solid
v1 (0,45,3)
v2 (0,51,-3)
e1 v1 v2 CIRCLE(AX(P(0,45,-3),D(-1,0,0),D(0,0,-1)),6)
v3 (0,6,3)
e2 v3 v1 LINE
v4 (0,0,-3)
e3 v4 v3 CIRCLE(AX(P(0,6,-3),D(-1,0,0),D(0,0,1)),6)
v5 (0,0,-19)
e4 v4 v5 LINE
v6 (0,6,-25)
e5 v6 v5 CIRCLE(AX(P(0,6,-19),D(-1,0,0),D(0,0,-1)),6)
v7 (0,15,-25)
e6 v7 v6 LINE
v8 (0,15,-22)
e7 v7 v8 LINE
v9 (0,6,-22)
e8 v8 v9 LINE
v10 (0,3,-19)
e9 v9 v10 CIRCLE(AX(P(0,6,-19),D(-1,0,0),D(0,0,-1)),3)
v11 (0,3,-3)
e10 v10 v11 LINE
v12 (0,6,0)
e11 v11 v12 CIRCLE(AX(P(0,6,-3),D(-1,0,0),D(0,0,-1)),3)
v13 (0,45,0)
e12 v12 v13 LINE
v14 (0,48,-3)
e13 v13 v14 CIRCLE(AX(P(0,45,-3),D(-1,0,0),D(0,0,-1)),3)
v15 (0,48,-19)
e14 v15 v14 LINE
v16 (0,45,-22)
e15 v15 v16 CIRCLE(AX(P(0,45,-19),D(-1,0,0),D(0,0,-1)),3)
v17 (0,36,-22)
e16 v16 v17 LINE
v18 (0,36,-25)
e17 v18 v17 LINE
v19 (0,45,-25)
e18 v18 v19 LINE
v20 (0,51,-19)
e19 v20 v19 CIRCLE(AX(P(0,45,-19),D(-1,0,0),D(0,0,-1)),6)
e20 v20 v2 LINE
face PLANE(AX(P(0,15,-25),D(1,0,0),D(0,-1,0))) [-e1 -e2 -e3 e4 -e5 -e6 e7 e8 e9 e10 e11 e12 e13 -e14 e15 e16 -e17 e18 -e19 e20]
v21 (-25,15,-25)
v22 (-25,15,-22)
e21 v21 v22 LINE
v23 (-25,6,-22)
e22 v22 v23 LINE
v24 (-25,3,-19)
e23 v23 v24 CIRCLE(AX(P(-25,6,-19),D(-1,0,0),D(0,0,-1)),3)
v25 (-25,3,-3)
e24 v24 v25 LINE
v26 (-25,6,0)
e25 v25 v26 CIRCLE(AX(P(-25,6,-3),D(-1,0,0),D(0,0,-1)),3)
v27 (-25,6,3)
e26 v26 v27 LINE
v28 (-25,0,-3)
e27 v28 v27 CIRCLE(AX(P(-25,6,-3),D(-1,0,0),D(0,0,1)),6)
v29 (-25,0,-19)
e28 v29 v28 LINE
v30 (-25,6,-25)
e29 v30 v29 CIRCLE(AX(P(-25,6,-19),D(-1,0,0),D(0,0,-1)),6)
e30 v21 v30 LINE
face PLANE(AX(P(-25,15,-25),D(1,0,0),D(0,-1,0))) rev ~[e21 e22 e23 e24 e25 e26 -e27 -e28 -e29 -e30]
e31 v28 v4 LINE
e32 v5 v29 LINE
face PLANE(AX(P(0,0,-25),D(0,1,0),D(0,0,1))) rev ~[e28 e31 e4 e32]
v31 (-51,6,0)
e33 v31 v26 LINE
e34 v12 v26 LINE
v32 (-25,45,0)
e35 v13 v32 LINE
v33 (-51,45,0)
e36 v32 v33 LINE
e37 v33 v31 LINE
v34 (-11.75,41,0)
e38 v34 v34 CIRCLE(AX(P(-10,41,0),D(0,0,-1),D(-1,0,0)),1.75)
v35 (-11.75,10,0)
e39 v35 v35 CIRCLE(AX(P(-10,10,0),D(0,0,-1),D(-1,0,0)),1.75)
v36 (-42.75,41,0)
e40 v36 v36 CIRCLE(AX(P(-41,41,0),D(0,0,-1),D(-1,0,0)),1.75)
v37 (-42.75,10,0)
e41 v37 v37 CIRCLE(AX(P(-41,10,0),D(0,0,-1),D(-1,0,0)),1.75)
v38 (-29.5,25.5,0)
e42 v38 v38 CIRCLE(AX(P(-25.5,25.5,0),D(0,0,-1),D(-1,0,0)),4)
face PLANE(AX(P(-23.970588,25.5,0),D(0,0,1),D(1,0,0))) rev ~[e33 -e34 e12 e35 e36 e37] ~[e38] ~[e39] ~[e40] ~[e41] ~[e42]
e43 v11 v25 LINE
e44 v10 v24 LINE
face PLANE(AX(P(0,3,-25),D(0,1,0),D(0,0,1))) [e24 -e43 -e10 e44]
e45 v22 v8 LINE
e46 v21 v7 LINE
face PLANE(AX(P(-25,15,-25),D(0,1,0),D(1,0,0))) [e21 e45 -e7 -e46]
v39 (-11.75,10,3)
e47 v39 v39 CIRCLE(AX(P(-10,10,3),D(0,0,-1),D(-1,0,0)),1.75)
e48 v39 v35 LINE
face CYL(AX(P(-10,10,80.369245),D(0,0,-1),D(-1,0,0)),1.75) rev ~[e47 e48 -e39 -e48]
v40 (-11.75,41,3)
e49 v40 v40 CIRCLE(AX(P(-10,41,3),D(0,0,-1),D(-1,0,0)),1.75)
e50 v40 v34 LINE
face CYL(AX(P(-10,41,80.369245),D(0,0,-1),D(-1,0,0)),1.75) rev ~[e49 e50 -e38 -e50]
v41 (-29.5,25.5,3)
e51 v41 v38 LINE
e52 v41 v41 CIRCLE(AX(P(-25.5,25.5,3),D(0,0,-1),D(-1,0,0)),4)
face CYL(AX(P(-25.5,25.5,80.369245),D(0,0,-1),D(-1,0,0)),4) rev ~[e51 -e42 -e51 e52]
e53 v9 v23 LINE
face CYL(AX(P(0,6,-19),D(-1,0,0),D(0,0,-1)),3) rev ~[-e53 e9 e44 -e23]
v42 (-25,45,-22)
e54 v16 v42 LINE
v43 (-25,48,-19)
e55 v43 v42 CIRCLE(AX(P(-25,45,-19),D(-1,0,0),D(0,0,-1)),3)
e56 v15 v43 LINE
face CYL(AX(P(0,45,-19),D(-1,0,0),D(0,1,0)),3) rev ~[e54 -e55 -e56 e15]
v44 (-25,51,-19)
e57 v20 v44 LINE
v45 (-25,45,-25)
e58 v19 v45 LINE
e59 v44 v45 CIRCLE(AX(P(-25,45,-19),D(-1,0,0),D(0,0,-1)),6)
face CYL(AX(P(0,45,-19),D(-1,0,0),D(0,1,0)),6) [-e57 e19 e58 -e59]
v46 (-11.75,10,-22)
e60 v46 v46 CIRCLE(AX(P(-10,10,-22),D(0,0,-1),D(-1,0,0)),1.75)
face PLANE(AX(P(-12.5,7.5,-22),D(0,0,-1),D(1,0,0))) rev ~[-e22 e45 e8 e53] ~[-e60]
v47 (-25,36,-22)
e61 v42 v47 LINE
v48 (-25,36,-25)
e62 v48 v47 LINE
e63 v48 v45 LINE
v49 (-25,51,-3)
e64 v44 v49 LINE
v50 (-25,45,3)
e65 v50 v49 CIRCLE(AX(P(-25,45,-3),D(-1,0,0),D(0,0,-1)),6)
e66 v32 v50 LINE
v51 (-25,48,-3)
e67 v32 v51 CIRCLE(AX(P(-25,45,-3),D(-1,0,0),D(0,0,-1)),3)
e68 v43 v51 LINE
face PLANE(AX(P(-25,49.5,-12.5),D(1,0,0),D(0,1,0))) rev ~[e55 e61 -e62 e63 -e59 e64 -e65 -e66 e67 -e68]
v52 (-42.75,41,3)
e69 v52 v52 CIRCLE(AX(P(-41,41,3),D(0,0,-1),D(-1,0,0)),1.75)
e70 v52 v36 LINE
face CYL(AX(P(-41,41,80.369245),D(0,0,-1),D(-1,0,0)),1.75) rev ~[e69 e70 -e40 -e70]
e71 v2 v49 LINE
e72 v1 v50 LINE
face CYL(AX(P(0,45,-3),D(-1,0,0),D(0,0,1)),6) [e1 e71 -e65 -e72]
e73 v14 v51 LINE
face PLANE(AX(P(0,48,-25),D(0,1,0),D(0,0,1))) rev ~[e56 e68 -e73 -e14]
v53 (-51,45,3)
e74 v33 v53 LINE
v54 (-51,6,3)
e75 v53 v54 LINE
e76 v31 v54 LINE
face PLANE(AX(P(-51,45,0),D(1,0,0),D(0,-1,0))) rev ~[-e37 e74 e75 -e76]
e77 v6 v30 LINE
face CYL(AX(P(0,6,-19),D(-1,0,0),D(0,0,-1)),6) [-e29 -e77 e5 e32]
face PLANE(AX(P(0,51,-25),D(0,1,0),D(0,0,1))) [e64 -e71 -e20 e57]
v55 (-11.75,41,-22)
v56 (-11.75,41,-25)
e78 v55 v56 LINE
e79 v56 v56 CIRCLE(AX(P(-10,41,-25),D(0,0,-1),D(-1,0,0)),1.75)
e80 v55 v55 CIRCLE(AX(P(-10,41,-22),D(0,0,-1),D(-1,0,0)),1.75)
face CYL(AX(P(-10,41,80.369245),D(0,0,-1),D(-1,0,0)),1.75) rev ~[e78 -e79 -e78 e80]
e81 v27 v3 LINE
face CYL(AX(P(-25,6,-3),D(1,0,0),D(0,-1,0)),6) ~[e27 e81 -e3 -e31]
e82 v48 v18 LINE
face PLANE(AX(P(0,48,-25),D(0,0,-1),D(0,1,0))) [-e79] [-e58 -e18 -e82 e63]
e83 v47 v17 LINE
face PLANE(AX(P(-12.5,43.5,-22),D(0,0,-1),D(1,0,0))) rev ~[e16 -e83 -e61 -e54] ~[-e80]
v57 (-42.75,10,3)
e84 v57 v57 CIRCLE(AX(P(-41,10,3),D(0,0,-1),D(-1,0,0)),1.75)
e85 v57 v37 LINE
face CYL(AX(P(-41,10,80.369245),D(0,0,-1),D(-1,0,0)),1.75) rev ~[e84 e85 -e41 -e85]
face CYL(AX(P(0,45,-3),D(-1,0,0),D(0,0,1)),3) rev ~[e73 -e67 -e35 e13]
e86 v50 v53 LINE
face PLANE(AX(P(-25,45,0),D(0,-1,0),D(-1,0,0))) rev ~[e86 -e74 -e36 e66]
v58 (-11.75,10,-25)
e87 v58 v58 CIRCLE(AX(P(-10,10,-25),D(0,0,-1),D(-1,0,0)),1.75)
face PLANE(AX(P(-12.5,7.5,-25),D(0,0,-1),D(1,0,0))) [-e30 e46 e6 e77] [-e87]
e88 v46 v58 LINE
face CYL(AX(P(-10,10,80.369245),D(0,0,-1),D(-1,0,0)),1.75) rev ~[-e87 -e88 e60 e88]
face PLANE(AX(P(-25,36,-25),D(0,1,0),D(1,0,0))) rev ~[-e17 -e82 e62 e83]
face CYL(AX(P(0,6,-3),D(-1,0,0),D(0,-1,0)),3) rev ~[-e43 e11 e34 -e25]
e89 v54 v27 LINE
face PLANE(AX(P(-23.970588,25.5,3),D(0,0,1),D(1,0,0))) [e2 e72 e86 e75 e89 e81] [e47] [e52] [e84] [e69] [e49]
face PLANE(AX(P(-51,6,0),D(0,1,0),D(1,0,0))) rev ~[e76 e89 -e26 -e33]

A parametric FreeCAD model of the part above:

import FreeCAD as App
import Part
import Sketcher

V = App.Vector
Q = App.Units.Quantity


def edges_at(feature, points):
    """Names of the edges that pass closest to the given points."""
    edges = feature.Shape.Edges
    near = lambda p: min(range(len(edges)), key=lambda i: edges[i].distToShape(Part.Vertex(*p))[0])
    return sorted({f"Edge{near(p) + 1}" for p in points})

doc = App.newDocument("Part")
params = doc.addObject("Spreadsheet::Sheet", "Params")
for row, (alias, value) in enumerate([
    ("sketch1_width", "25 mm"),
    ("sketch1_width2", "26 mm"),
    ("sketch1_height", "51 mm"),
    ("sketch1_height2", "6 mm"),
    ("pad1_length", "3 mm"),
    ("sketch2_width", "3 mm"),
    ("sketch2_height", "25 mm"),
    ("pad2_length", "25 mm"),
    ("sketch3_width", "3 mm"),
    ("sketch3_height", "25 mm"),
    ("pad3_length", "25 mm"),
    ("sketch4_width", "25 mm"),
    ("sketch4_height", "15 mm"),
    ("pad4_length", "3 mm"),
    ("sketch5_width", "25 mm"),
    ("sketch5_height", "15 mm"),
    ("pad5_length", "3 mm"),
    ("sketch6_diameter", "3.5 mm"),
    ("hole_diameter", "3.5 mm"),
    ("sketch7_diameter", "8 mm"),
    ("hole2_diameter", "8 mm"),
    ("fillet_radius", "3 mm"),
    ("fillet2_radius", "6 mm"),
], start=1):
    params.set(f"A{row}", alias)
    params.set(f"B{row}", "=" + value)
    params.setAlias(f"B{row}", alias)

body = doc.addObject("PartDesign::Body", "Body")

# Sketch on XY plane
sketch1 = body.newObject("Sketcher::SketchObject", "Sketch")
sketch1.AttachmentSupport = (doc.getObject("XY_Plane"), [""])
sketch1.MapMode = "FlatFace"
sketch1.addGeometry(Part.LineSegment(V(-25, 0, 0), V(0, 0, 0)), False)
sketch1.addGeometry(Part.LineSegment(V(0, 0, 0), V(0, 51, 0)), False)
sketch1.addGeometry(Part.LineSegment(V(0, 51, 0), V(-25, 51, 0)), False)
sketch1.addGeometry(Part.LineSegment(V(-25, 51, 0), V(-25, 45, 0)), False)
sketch1.addGeometry(Part.LineSegment(V(-25, 45, 0), V(-51, 45, 0)), False)
sketch1.addGeometry(Part.LineSegment(V(-51, 45, 0), V(-51, 6, 0)), False)
sketch1.addGeometry(Part.LineSegment(V(-51, 6, 0), V(-25, 6, 0)), False)
sketch1.addGeometry(Part.LineSegment(V(-25, 6, 0), V(-25, 0, 0)), False)
sketch1.addConstraint(Sketcher.Constraint("Coincident", 0, 2, 1, 1))
sketch1.addConstraint(Sketcher.Constraint("Coincident", 1, 2, 2, 1))
sketch1.addConstraint(Sketcher.Constraint("Coincident", 2, 2, 3, 1))
sketch1.addConstraint(Sketcher.Constraint("Coincident", 3, 2, 4, 1))
sketch1.addConstraint(Sketcher.Constraint("Coincident", 4, 2, 5, 1))
sketch1.addConstraint(Sketcher.Constraint("Coincident", 5, 2, 6, 1))
sketch1.addConstraint(Sketcher.Constraint("Coincident", 6, 2, 7, 1))
sketch1.addConstraint(Sketcher.Constraint("Coincident", 7, 2, 0, 1))
sketch1.addConstraint(Sketcher.Constraint("Horizontal", 0))
sketch1.addConstraint(Sketcher.Constraint("Vertical", 1))
sketch1.addConstraint(Sketcher.Constraint("Horizontal", 2))
sketch1.addConstraint(Sketcher.Constraint("Vertical", 3))
sketch1.addConstraint(Sketcher.Constraint("Horizontal", 4))
sketch1.addConstraint(Sketcher.Constraint("Vertical", 5))
sketch1.addConstraint(Sketcher.Constraint("Horizontal", 6))
sketch1.addConstraint(Sketcher.Constraint("Vertical", 7))
sketch1.addConstraint(Sketcher.Constraint("Coincident", 0, 2, -1, 1))
sketch1.addConstraint(Sketcher.Constraint("Vertical", 3, 2, 6, 2))
sketch1.addConstraint(Sketcher.Constraint("Equal", 3, 7))
sketch1.addConstraint(Sketcher.Constraint("DistanceX", 0, 1, 0, 2, Q("25 mm")))
sketch1.addConstraint(Sketcher.Constraint("DistanceX", 4, 2, 4, 1, Q("26 mm")))
sketch1.addConstraint(Sketcher.Constraint("DistanceY", 1, 1, 1, 2, Q("51 mm")))
sketch1.addConstraint(Sketcher.Constraint("DistanceY", 3, 2, 3, 1, Q("6 mm")))
sketch1.setExpression("Constraints[19]", "Params.sketch1_width")
sketch1.setExpression("Constraints[20]", "Params.sketch1_width2")
sketch1.setExpression("Constraints[21]", "Params.sketch1_height")
sketch1.setExpression("Constraints[22]", "Params.sketch1_height2")
pad1 = body.newObject("PartDesign::Pad", "Pad")
pad1.Profile = sketch1
pad1.setExpression("Length", "Params.pad1_length")

# Sketch on YZ plane
sketch2 = body.newObject("Sketcher::SketchObject", "Sketch001")
sketch2.AttachmentSupport = (doc.getObject("YZ_Plane"), [""])
sketch2.MapMode = "FlatFace"
sketch2.addGeometry(Part.LineSegment(V(0, 0, 0), V(0, -25, 0)), False)
sketch2.addGeometry(Part.LineSegment(V(0, -25, 0), V(3, -25, 0)), False)
sketch2.addGeometry(Part.LineSegment(V(3, -25, 0), V(3, 0, 0)), False)
sketch2.addGeometry(Part.LineSegment(V(3, 0, 0), V(0, 0, 0)), False)
sketch2.addConstraint(Sketcher.Constraint("Coincident", 0, 2, 1, 1))
sketch2.addConstraint(Sketcher.Constraint("Coincident", 1, 2, 2, 1))
sketch2.addConstraint(Sketcher.Constraint("Coincident", 2, 2, 3, 1))
sketch2.addConstraint(Sketcher.Constraint("Coincident", 3, 2, 0, 1))
sketch2.addConstraint(Sketcher.Constraint("Vertical", 0))
sketch2.addConstraint(Sketcher.Constraint("Horizontal", 1))
sketch2.addConstraint(Sketcher.Constraint("Vertical", 2))
sketch2.addConstraint(Sketcher.Constraint("Horizontal", 3))
sketch2.addConstraint(Sketcher.Constraint("Coincident", 3, 2, -1, 1))
sketch2.addConstraint(Sketcher.Constraint("DistanceX", 1, 1, 1, 2, Q("3 mm")))
sketch2.addConstraint(Sketcher.Constraint("DistanceY", 0, 2, 0, 1, Q("25 mm")))
sketch2.setExpression("Constraints[9]", "Params.sketch2_width")
sketch2.setExpression("Constraints[10]", "Params.sketch2_height")
pad2 = body.newObject("PartDesign::Pad", "Pad001")
pad2.Profile = sketch2
pad2.setExpression("Length", "Params.pad2_length")
pad2.Reversed = True

# Sketch on YZ plane
sketch3 = body.newObject("Sketcher::SketchObject", "Sketch002")
sketch3.AttachmentSupport = (doc.getObject("YZ_Plane"), [""])
sketch3.MapMode = "FlatFace"
sketch3.addGeometry(Part.LineSegment(V(48, 0, 0), V(48, -25, 0)), False)
sketch3.addGeometry(Part.LineSegment(V(48, -25, 0), V(51, -25, 0)), False)
sketch3.addGeometry(Part.LineSegment(V(51, -25, 0), V(51, 0, 0)), False)
sketch3.addGeometry(Part.LineSegment(V(51, 0, 0), V(48, 0, 0)), False)
sketch3.addConstraint(Sketcher.Constraint("Coincident", 0, 2, 1, 1))
sketch3.addConstraint(Sketcher.Constraint("Coincident", 1, 2, 2, 1))
sketch3.addConstraint(Sketcher.Constraint("Coincident", 2, 2, 3, 1))
sketch3.addConstraint(Sketcher.Constraint("Coincident", 3, 2, 0, 1))
sketch3.addConstraint(Sketcher.Constraint("Vertical", 0))
sketch3.addConstraint(Sketcher.Constraint("Horizontal", 1))
sketch3.addConstraint(Sketcher.Constraint("Vertical", 2))
sketch3.addConstraint(Sketcher.Constraint("Horizontal", 3))
sketch3.addConstraint(Sketcher.Constraint("PointOnObject", 2, 2, -1))
sketch3.addConstraint(Sketcher.Constraint("DistanceX", 1, 1, 1, 2, Q("3 mm")))
sketch3.addConstraint(Sketcher.Constraint("DistanceY", 0, 2, 0, 1, Q("25 mm")))
sketch3.addConstraint(Sketcher.Constraint("DistanceX", -1, 1, 0, 2, Q("48 mm")))
sketch3.setExpression("Constraints[9]", "Params.sketch3_width")
sketch3.setExpression("Constraints[10]", "Params.sketch3_height")
pad3 = body.newObject("PartDesign::Pad", "Pad002")
pad3.Profile = sketch3
pad3.setExpression("Length", "Params.pad3_length")
pad3.Reversed = True

# Sketch on XY plane
sketch4 = body.newObject("Sketcher::SketchObject", "Sketch003")
sketch4.AttachmentSupport = (doc.getObject("XY_Plane"), [""])
sketch4.MapMode = "FlatFace"
sketch4.AttachmentOffset = App.Placement(V(0, 0, -25), App.Rotation())
sketch4.addGeometry(Part.LineSegment(V(-25, 0, 0), V(-25, 15, 0)), False)
sketch4.addGeometry(Part.LineSegment(V(-25, 15, 0), V(0, 15, 0)), False)
sketch4.addGeometry(Part.LineSegment(V(0, 15, 0), V(0, 0, 0)), False)
sketch4.addGeometry(Part.LineSegment(V(0, 0, 0), V(-25, 0, 0)), False)
sketch4.addConstraint(Sketcher.Constraint("Coincident", 0, 2, 1, 1))
sketch4.addConstraint(Sketcher.Constraint("Coincident", 1, 2, 2, 1))
sketch4.addConstraint(Sketcher.Constraint("Coincident", 2, 2, 3, 1))
sketch4.addConstraint(Sketcher.Constraint("Coincident", 3, 2, 0, 1))
sketch4.addConstraint(Sketcher.Constraint("Vertical", 0))
sketch4.addConstraint(Sketcher.Constraint("Horizontal", 1))
sketch4.addConstraint(Sketcher.Constraint("Vertical", 2))
sketch4.addConstraint(Sketcher.Constraint("Horizontal", 3))
sketch4.addConstraint(Sketcher.Constraint("Coincident", 2, 2, -1, 1))
sketch4.addConstraint(Sketcher.Constraint("DistanceX", 1, 1, 1, 2, Q("25 mm")))
sketch4.addConstraint(Sketcher.Constraint("DistanceY", 0, 1, 0, 2, Q("15 mm")))
sketch4.setExpression("Constraints[9]", "Params.sketch4_width")
sketch4.setExpression("Constraints[10]", "Params.sketch4_height")
pad4 = body.newObject("PartDesign::Pad", "Pad003")
pad4.Profile = sketch4
pad4.setExpression("Length", "Params.pad4_length")

# Sketch on XY plane
sketch5 = body.newObject("Sketcher::SketchObject", "Sketch004")
sketch5.AttachmentSupport = (doc.getObject("XY_Plane"), [""])
sketch5.MapMode = "FlatFace"
sketch5.AttachmentOffset = App.Placement(V(0, 0, -25), App.Rotation())
sketch5.addGeometry(Part.LineSegment(V(-25, 36, 0), V(-25, 51, 0)), False)
sketch5.addGeometry(Part.LineSegment(V(-25, 51, 0), V(0, 51, 0)), False)
sketch5.addGeometry(Part.LineSegment(V(0, 51, 0), V(0, 36, 0)), False)
sketch5.addGeometry(Part.LineSegment(V(0, 36, 0), V(-25, 36, 0)), False)
sketch5.addConstraint(Sketcher.Constraint("Coincident", 0, 2, 1, 1))
sketch5.addConstraint(Sketcher.Constraint("Coincident", 1, 2, 2, 1))
sketch5.addConstraint(Sketcher.Constraint("Coincident", 2, 2, 3, 1))
sketch5.addConstraint(Sketcher.Constraint("Coincident", 3, 2, 0, 1))
sketch5.addConstraint(Sketcher.Constraint("Vertical", 0))
sketch5.addConstraint(Sketcher.Constraint("Horizontal", 1))
sketch5.addConstraint(Sketcher.Constraint("Vertical", 2))
sketch5.addConstraint(Sketcher.Constraint("Horizontal", 3))
sketch5.addConstraint(Sketcher.Constraint("PointOnObject", 1, 2, -2))
sketch5.addConstraint(Sketcher.Constraint("DistanceX", 1, 1, 1, 2, Q("25 mm")))
sketch5.addConstraint(Sketcher.Constraint("DistanceY", 0, 1, 0, 2, Q("15 mm")))
sketch5.addConstraint(Sketcher.Constraint("DistanceY", -1, 1, 0, 2, Q("51 mm")))
sketch5.setExpression("Constraints[9]", "Params.sketch5_width")
sketch5.setExpression("Constraints[10]", "Params.sketch5_height")
pad5 = body.newObject("PartDesign::Pad", "Pad004")
pad5.Profile = sketch5
pad5.setExpression("Length", "Params.pad5_length")

# Sketch on XY plane
sketch6 = body.newObject("Sketcher::SketchObject", "Sketch005")
sketch6.AttachmentSupport = (doc.getObject("XY_Plane"), [""])
sketch6.MapMode = "FlatFace"
sketch6.AttachmentOffset = App.Placement(V(0, 0, 3), App.Rotation())
sketch6.addGeometry(Part.Circle(V(-41, 41, 0), V(0, 0, 1), 1.8), False)
sketch6.addGeometry(Part.Circle(V(-10, 41, 0), V(0, 0, 1), 1.8), False)
sketch6.addGeometry(Part.Circle(V(-10, 10, 0), V(0, 0, 1), 1.8), False)
sketch6.addGeometry(Part.Circle(V(-41, 10, 0), V(0, 0, 1), 1.8), False)
sketch6.addConstraint(Sketcher.Constraint("Equal", 0, 1))
sketch6.addConstraint(Sketcher.Constraint("Equal", 1, 2))
sketch6.addConstraint(Sketcher.Constraint("Equal", 2, 3))
sketch6.addConstraint(Sketcher.Constraint("Horizontal", 0, 3, 1, 3))
sketch6.addConstraint(Sketcher.Constraint("Horizontal", 2, 3, 3, 3))
sketch6.addConstraint(Sketcher.Constraint("Vertical", 1, 3, 2, 3))
sketch6.addConstraint(Sketcher.Constraint("Vertical", 0, 3, 3, 3))
sketch6.addConstraint(Sketcher.Constraint("Diameter", 0, Q("3.5 mm")))
sketch6.addConstraint(Sketcher.Constraint("DistanceX", 0, 3, -1, 1, Q("41 mm")))
sketch6.addConstraint(Sketcher.Constraint("DistanceY", -1, 1, 0, 3, Q("41 mm")))
sketch6.addConstraint(Sketcher.Constraint("DistanceX", 1, 3, -1, 1, Q("10 mm")))
sketch6.addConstraint(Sketcher.Constraint("DistanceY", -1, 1, 2, 3, Q("10 mm")))
sketch6.setExpression("Constraints[7]", "Params.sketch6_diameter")
doc.recompute()
hole = body.newObject("PartDesign::Hole", "Hole")
hole.Profile = sketch6
hole.ThreadType = "None"
hole.setExpression("Diameter", "Params.hole_diameter")
hole.DepthType = "ThroughAll"

# Sketch on XY plane
sketch7 = body.newObject("Sketcher::SketchObject", "Sketch006")
sketch7.AttachmentSupport = (doc.getObject("XY_Plane"), [""])
sketch7.MapMode = "FlatFace"
sketch7.AttachmentOffset = App.Placement(V(0, 0, 3), App.Rotation())
sketch7.addGeometry(Part.Circle(V(-25.5, 25.5, 0), V(0, 0, 1), 4), False)
sketch7.addConstraint(Sketcher.Constraint("Diameter", 0, Q("8 mm")))
sketch7.addConstraint(Sketcher.Constraint("DistanceX", 0, 3, -1, 1, Q("25.5 mm")))
sketch7.addConstraint(Sketcher.Constraint("DistanceY", -1, 1, 0, 3, Q("25.5 mm")))
sketch7.setExpression("Constraints[0]", "Params.sketch7_diameter")
doc.recompute()
hole2 = body.newObject("PartDesign::Hole", "Hole001")
hole2.Profile = sketch7
hole2.ThreadType = "None"
hole2.setExpression("Diameter", "Params.hole2_diameter")
hole2.DepthType = "ThroughAll"
doc.recompute()

fillet = body.newObject("PartDesign::Fillet", "Fillet")
fillet.Base = (hole2, edges_at(hole2, [
    (-12.5, 3, 0),
    (-12.5, 48, 0),
    (-12.5, 48, -22),
    (-12.5, 3, -22),
]))
fillet.setExpression("Radius", "Params.fillet_radius")
doc.recompute()

fillet2 = body.newObject("PartDesign::Fillet", "Fillet001")
fillet2.Base = (fillet, edges_at(fillet, [
    (-12.5, 0, 3),
    (-12.5, 0, -25),
    (-12.5, 51, 3),
    (-12.5, 51, -25),
]))
fillet2.setExpression("Radius", "Params.fillet2_radius")

doc.recompute()
